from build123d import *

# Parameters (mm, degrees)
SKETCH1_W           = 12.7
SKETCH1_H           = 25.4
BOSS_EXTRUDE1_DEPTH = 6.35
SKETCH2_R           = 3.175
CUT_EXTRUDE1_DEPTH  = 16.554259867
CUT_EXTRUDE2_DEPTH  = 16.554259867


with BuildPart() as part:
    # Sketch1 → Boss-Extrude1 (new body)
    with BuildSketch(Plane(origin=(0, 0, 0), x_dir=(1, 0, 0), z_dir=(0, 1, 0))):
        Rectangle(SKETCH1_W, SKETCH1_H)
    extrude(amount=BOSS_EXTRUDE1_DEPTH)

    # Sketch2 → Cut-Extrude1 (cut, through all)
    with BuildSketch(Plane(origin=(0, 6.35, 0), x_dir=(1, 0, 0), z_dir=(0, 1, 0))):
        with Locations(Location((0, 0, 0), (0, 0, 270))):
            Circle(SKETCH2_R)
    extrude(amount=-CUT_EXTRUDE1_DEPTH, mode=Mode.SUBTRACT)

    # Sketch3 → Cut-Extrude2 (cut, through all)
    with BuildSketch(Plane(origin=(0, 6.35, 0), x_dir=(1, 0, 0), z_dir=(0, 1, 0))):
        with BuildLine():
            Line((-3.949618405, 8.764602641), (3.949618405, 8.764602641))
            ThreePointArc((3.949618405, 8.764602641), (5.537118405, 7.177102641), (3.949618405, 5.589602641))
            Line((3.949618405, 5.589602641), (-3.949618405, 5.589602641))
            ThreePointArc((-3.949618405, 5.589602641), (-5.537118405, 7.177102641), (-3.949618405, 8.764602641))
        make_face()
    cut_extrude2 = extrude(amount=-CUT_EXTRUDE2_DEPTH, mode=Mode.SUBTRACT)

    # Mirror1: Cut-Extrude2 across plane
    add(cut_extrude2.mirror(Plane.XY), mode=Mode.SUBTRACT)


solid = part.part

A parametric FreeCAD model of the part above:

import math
import FreeCAD as App
import Part
import Sketcher
from FreeCAD import Vector
Q = App.Units.Quantity

doc = App.newDocument("Part")
body = doc.addObject("PartDesign::Body", "Body")

# Sketch on XZ plane
sketch1 = body.newObject("Sketcher::SketchObject", "Sketch")
sketch1.AttachmentSupport = (doc.getObject("XZ_Plane"), [""])
sketch1.MapMode = "FlatFace"
sketch1.addGeometry([
    Part.LineSegment(Vector(-6, -13, 0), Vector(-6, 13, 0)),
    Part.LineSegment(Vector(-6, 13, 0), Vector(6, 13, 0)),
    Part.LineSegment(Vector(6, 13, 0), Vector(6, -13, 0)),
    Part.LineSegment(Vector(6, -13, 0), Vector(-6, -13, 0)),
], False)
sketch1.addConstraint([
    Sketcher.Constraint("Coincident", 0, 2, 1, 1),
    Sketcher.Constraint("Coincident", 1, 2, 2, 1),
    Sketcher.Constraint("Coincident", 2, 2, 3, 1),
    Sketcher.Constraint("Coincident", 3, 2, 0, 1),
    Sketcher.Constraint("Vertical", 0),
    Sketcher.Constraint("Horizontal", 1),
    Sketcher.Constraint("Vertical", 2),
    Sketcher.Constraint("Horizontal", 3),
    Sketcher.Constraint("Symmetric", 0, 2, 2, 2, -1, 1),
    Sketcher.Constraint("DistanceY", 0, 1, 0, 2, Q("1 in")),
    Sketcher.Constraint("DistanceX", 1, 1, 1, 2, Q("0.5 in")),
])
pad1 = body.newObject("PartDesign::Pad", "Pad")
pad1.Profile = sketch1
pad1.Length = Q("0.25 in")
pad1.Reversed = True

# Sketch on XZ plane
sketch2 = body.newObject("Sketcher::SketchObject", "Sketch001")
sketch2.AttachmentSupport = (doc.getObject("XZ_Plane"), [""])
sketch2.MapMode = "FlatFace"
sketch2.AttachmentOffset = App.Placement(Vector(0, 0, -0.25 * 25.4), App.Rotation())
sketch2.addGeometry(Part.Circle(Vector(0, 0, 0), Vector(0, 0, 1), 3.2), False)
sketch2.addConstraint([
    Sketcher.Constraint("Coincident", 0, 3, -1, 1),
    Sketcher.Constraint("Diameter", 0, Q("0.25 in")),
])
pocket1 = body.newObject("PartDesign::Pocket", "Pocket")
pocket1.Profile = sketch2
pocket1.Type = "ThroughAll"
pocket1.Reversed = True

# Sketch on XZ plane
sketch3 = body.newObject("Sketcher::SketchObject", "Sketch002")
sketch3.AttachmentSupport = (doc.getObject("XZ_Plane"), [""])
sketch3.MapMode = "FlatFace"
sketch3.AttachmentOffset = App.Placement(Vector(0, 0, -0.25 * 25.4), App.Rotation())
sketch3.addGeometry([
    Part.LineSegment(Vector(3.9, -8.8, 0), Vector(-3.9, -8.8, 0)),
    Part.ArcOfCircle(Part.Circle(Vector(-3.9, -7.2, 0), Vector(0, 0, 1), 1.6), math.radians(90), math.radians(270)),
    Part.LineSegment(Vector(-3.9, -5.6, 0), Vector(3.9, -5.6, 0)),
    Part.ArcOfCircle(Part.Circle(Vector(3.9, -7.2, 0), Vector(0, 0, 1), 1.6), math.radians(-90), math.radians(90)),
], False)
sketch3.addConstraint([
    Sketcher.Constraint("Tangent", 0, 2, 1, 2),
    Sketcher.Constraint("Tangent", 1, 1, 2, 1),
    Sketcher.Constraint("Tangent", 2, 2, 3, 2),
    Sketcher.Constraint("Tangent", 3, 1, 0, 1),
    Sketcher.Constraint("Horizontal", 0),
    Sketcher.Constraint("Horizontal", 2),
    Sketcher.Constraint("Radius", 1, Q("0.0625 in")),
    Sketcher.Constraint("DistanceX", 0, 2, 0, 1, Q("7.899237 mm")),
    Sketcher.Constraint("DistanceX", 1, 3, -1, 1, Q("3.949618 mm")),
    Sketcher.Constraint("DistanceY", 1, 3, -1, 1, Q("7.177103 mm")),
])
pocket2 = body.newObject("PartDesign::Pocket", "Pocket001")
pocket2.Profile = sketch3
pocket2.Type = "ThroughAll"
pocket2.Reversed = True
doc.recompute()

mirrored = body.newObject("PartDesign::Mirrored", "Mirrored")
mirrored.Originals = [pocket2]
mirrored.MirrorPlane = (doc.getObject("XY_Plane"), [""])
body.Tip = mirrored

doc.recompute()
